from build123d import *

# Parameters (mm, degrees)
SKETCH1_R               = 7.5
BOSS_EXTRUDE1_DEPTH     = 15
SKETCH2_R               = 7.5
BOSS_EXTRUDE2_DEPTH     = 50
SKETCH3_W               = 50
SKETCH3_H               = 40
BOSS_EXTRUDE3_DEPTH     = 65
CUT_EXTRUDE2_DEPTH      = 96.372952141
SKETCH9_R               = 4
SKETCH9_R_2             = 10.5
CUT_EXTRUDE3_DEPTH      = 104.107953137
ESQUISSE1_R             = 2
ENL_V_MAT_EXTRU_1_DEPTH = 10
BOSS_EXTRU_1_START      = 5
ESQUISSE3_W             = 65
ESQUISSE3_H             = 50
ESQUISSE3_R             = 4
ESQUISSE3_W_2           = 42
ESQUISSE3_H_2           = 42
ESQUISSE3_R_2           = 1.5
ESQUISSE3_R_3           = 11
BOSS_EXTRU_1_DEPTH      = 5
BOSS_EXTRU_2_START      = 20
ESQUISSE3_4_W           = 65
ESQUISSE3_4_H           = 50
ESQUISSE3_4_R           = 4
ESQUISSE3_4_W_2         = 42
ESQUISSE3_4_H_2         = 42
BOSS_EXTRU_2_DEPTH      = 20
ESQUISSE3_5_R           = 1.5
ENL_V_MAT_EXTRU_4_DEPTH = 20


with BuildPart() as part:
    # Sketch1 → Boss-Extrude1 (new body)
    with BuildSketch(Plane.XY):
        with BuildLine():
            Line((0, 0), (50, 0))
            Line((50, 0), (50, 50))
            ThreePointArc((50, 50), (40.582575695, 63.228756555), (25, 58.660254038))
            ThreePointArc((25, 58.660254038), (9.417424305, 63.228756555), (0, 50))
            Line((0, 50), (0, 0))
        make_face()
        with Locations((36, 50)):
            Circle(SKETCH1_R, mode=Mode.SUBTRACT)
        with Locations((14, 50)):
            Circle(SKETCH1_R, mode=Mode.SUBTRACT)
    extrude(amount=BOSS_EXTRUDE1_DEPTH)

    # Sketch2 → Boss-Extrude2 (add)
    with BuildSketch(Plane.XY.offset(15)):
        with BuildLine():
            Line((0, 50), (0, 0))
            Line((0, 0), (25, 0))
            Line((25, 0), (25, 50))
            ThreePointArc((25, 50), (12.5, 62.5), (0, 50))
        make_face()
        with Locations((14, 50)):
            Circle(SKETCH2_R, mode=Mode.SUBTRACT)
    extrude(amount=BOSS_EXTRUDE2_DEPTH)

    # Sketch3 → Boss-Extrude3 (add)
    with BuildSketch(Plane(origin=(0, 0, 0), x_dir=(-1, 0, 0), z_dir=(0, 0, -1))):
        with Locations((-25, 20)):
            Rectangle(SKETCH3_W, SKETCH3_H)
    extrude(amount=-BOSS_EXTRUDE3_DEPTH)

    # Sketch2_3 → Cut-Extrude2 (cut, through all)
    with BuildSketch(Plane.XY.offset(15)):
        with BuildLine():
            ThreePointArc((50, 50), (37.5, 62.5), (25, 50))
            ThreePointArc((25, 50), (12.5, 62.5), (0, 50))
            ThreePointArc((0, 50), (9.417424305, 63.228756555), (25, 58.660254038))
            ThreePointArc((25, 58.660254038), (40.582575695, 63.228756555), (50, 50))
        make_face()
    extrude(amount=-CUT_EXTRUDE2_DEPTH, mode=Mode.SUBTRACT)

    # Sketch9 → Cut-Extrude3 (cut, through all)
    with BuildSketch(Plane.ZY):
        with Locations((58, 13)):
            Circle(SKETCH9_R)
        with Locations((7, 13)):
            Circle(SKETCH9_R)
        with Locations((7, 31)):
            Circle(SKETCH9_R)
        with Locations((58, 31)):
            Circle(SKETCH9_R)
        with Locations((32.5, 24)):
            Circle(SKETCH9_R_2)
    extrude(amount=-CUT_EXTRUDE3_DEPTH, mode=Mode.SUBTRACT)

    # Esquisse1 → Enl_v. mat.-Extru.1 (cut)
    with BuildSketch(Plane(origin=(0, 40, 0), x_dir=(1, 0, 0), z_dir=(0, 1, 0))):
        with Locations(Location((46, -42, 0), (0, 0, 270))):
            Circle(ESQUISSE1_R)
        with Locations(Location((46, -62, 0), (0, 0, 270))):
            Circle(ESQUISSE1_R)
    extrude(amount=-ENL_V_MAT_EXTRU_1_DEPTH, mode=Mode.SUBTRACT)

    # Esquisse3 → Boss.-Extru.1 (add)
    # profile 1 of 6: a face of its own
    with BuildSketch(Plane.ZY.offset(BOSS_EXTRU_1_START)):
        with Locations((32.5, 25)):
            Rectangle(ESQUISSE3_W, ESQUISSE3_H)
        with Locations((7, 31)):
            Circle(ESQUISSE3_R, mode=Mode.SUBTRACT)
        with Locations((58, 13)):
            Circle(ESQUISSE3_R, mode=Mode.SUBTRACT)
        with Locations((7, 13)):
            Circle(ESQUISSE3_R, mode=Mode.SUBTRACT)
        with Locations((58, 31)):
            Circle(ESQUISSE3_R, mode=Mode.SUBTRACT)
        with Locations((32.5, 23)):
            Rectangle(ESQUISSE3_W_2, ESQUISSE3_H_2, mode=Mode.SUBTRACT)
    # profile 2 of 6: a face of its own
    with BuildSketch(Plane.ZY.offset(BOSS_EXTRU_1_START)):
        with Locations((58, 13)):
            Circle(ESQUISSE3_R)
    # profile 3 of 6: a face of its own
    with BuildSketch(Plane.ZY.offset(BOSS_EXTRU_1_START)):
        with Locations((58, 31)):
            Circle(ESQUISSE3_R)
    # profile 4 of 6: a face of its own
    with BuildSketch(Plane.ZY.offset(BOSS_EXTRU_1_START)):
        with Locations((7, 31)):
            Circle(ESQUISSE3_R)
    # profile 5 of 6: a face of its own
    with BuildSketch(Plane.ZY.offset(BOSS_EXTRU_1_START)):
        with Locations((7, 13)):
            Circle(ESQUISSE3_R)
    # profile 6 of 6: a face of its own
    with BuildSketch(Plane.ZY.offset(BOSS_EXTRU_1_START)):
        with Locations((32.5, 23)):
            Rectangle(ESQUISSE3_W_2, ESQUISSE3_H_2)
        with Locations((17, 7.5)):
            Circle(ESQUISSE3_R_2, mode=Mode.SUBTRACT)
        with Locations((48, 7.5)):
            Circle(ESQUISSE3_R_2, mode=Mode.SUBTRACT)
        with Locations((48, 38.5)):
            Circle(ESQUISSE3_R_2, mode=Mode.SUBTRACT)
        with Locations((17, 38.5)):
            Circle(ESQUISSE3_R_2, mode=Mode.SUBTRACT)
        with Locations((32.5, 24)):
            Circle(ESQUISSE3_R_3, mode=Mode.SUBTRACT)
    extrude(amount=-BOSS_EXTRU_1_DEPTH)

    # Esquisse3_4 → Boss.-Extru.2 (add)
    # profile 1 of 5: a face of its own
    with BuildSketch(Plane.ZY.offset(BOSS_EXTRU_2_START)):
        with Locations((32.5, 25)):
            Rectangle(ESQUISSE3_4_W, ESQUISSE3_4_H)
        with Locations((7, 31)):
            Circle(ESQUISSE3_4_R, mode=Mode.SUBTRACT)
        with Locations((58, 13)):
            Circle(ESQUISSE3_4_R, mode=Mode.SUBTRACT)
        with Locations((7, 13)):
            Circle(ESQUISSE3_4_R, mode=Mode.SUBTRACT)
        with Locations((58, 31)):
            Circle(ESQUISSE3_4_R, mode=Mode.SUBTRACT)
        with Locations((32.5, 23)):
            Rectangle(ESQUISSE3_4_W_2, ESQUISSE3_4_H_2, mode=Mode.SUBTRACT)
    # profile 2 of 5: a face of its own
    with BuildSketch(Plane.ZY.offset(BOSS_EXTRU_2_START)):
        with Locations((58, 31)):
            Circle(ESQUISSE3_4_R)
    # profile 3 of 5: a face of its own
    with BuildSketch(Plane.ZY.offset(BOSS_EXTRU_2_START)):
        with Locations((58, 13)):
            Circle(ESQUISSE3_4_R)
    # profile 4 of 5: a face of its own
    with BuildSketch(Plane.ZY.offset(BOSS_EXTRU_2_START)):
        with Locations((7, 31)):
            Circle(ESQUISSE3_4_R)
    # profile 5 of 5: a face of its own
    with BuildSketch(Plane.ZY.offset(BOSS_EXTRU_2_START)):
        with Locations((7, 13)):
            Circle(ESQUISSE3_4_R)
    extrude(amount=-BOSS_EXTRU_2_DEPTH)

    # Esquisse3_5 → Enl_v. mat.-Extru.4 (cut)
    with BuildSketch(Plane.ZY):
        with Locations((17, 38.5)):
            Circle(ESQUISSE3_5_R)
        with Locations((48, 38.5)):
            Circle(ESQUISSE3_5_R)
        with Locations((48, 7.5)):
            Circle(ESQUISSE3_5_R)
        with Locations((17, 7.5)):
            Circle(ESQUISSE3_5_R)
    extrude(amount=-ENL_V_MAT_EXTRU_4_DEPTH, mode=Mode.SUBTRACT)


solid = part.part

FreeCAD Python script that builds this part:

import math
import FreeCAD as App
import Part
import Sketcher
from FreeCAD import Vector
Q = App.Units.Quantity

doc = App.newDocument("Part")
body = doc.addObject("PartDesign::Body", "Body")

sketch1 = doc.addObject("Sketcher::SketchObject", "Sketch")
body.addObject(sketch1)
sketch1.AttachmentSupport = (doc.XY_Plane, [""])
sketch1.MapMode = "FlatFace"
sketch1.addGeometry([
    Part.LineSegment(Vector(0, 0, 0), Vector(50, 0, 0)),
    Part.LineSegment(Vector(50, 0, 0), Vector(50, 50, 0)),
    Part.ArcOfCircle(Part.Circle(Vector(36, 50, 0), Vector(0, 0, 1), 14), math.radians(0), math.radians(142)),
    Part.ArcOfCircle(Part.Circle(Vector(14, 50, 0), Vector(0, 0, 1), 14), math.radians(38), math.radians(180)),
    Part.LineSegment(Vector(0, 50, 0), Vector(0, 0, 0)),
    Part.Circle(Vector(14, 50, 0), Vector(0, 0, 1), 8),
    Part.Circle(Vector(36, 50, 0), Vector(0, 0, 1), 8),
], False)
sketch1.addConstraint([
    Sketcher.Constraint("Coincident", 0, 2, 1, 1),
    Sketcher.Constraint("Tangent", 1, 2, 2, 1),
    Sketcher.Constraint("Coincident", 2, 2, 3, 1),
    Sketcher.Constraint("Tangent", 3, 2, 4, 1),
    Sketcher.Constraint("Coincident", 4, 2, 0, 1),
    Sketcher.Constraint("Horizontal", 0),
    Sketcher.Constraint("Vertical", 1),
    Sketcher.Constraint("Vertical", 4),
    Sketcher.Constraint("Coincident", 4, 2, -1, 1),
    Sketcher.Constraint("Coincident", 5, 3, 3, 3),
    Sketcher.Constraint("Coincident", 6, 3, 2, 3),
    Sketcher.Constraint("Equal", 2, 3),
    Sketcher.Constraint("Equal", 5, 6),
    Sketcher.Constraint("Horizontal", 2, 3, 3, 3),
    Sketcher.Constraint("Equal", 0, 1),
    Sketcher.Constraint("Diameter", 5, Q("15 mm")),
    Sketcher.Constraint("Radius", 2, Q("14 mm")),
    Sketcher.Constraint("DistanceX", 0, 1, 0, 2, Q("50 mm")),
])
pad1 = doc.addObject("PartDesign::Pad", "Pad")
body.addObject(pad1)
pad1.Profile = sketch1
pad1.Length = 15

sketch2 = doc.addObject("Sketcher::SketchObject", "Sketch001")
body.addObject(sketch2)
sketch2.AttachmentSupport = (doc.XY_Plane, [""])
sketch2.MapMode = "FlatFace"
sketch2.AttachmentOffset = App.Placement(Vector(0, 0, 15), App.Rotation())
sketch2.addGeometry([
    Part.LineSegment(Vector(0, 50, 0), Vector(0, 0, 0)),
    Part.LineSegment(Vector(0, 0, 0), Vector(25, 0, 0)),
    Part.LineSegment(Vector(25, 0, 0), Vector(25, 50, 0)),
    Part.ArcOfCircle(Part.Circle(Vector(12, 50, 0), Vector(0, 0, 1), 12), math.radians(0), math.radians(180)),
    Part.Circle(Vector(14, 50, 0), Vector(0, 0, 1), 8),
], False)
sketch2.addConstraint([
    Sketcher.Constraint("Coincident", 0, 2, 1, 1),
    Sketcher.Constraint("Coincident", 1, 2, 2, 1),
    Sketcher.Constraint("Tangent", 2, 2, 3, 1),
    Sketcher.Constraint("Tangent", 3, 2, 0, 1),
    Sketcher.Constraint("Vertical", 0),
    Sketcher.Constraint("Horizontal", 1),
    Sketcher.Constraint("Vertical", 2),
    Sketcher.Constraint("Coincident", 0, 2, -1, 1),
    Sketcher.Constraint("Horizontal", 3, 3, 4, 3),
    Sketcher.Constraint("Diameter", 4, Q("15 mm")),
    Sketcher.Constraint("Radius", 3, Q("12.5 mm")),
    Sketcher.Constraint("DistanceY", 0, 2, 0, 1, Q("50 mm")),
    Sketcher.Constraint("DistanceX", -1, 1, 4, 3, Q("14 mm")),
])
pad2 = doc.addObject("PartDesign::Pad", "Pad001")
body.addObject(pad2)
pad2.Profile = sketch2
pad2.Length = 50

sketch3 = doc.addObject("Sketcher::SketchObject", "Sketch002")
body.addObject(sketch3)
sketch3.AttachmentSupport = (doc.XY_Plane, [""])
sketch3.MapMode = "FlatFace"
sketch3.addGeometry([
    Part.LineSegment(Vector(50, 40, 0), Vector(50, 0, 0)),
    Part.LineSegment(Vector(50, 0, 0), Vector(0, 0, 0)),
    Part.LineSegment(Vector(0, 0, 0), Vector(0, 40, 0)),
    Part.LineSegment(Vector(0, 40, 0), Vector(50, 40, 0)),
], False)
sketch3.addConstraint([
    Sketcher.Constraint("Coincident", 0, 2, 1, 1),
    Sketcher.Constraint("Coincident", 1, 2, 2, 1),
    Sketcher.Constraint("Coincident", 2, 2, 3, 1),
    Sketcher.Constraint("Coincident", 3, 2, 0, 1),
    Sketcher.Constraint("Vertical", 0),
    Sketcher.Constraint("Horizontal", 1),
    Sketcher.Constraint("Vertical", 2),
    Sketcher.Constraint("Horizontal", 3),
    Sketcher.Constraint("Coincident", 1, 2, -1, 1),
    Sketcher.Constraint("DistanceX", 1, 2, 1, 1, Q("50 mm")),
    Sketcher.Constraint("DistanceY", 0, 2, 0, 1, Q("40 mm")),
])
pad3 = doc.addObject("PartDesign::Pad", "Pad002")
body.addObject(pad3)
pad3.Profile = sketch3
pad3.Length = 65

sketch4 = doc.addObject("Sketcher::SketchObject", "Sketch003")
body.addObject(sketch4)
sketch4.AttachmentSupport = (doc.XY_Plane, [""])
sketch4.MapMode = "FlatFace"
sketch4.AttachmentOffset = App.Placement(Vector(0, 0, 15), App.Rotation())
sketch4.addGeometry([
    Part.ArcOfCircle(Part.Circle(Vector(38, 50, 0), Vector(0, 0, 1), 12), math.radians(0), math.radians(180)),
    Part.ArcOfCircle(Part.Circle(Vector(36, 50, 0), Vector(0, 0, 1), 14), math.radians(0), math.radians(142)),
    Part.ArcOfCircle(Part.Circle(Vector(14, 50, 0), Vector(0, 0, 1), 14), math.radians(38), math.radians(180)),
    Part.ArcOfCircle(Part.Circle(Vector(12, 50, 0), Vector(0, 0, 1), 12), math.radians(0), math.radians(180)),
], False)
sketch4.addConstraint([
    Sketcher.Constraint("Tangent", 0, 1, 1, 1),
    Sketcher.Constraint("Coincident", 1, 2, 2, 1),
    Sketcher.Constraint("Tangent", 2, 2, 3, 2),
    Sketcher.Constraint("Tangent", 3, 1, 0, 2),
    Sketcher.Constraint("Equal", 1, 2),
    Sketcher.Constraint("Equal", 0, 3),
    Sketcher.Constraint("PointOnObject", 2, 2, -2),
    Sketcher.Constraint("Horizontal", 0, 3, 1, 3),
    Sketcher.Constraint("Horizontal", 1, 3, 2, 3),
    Sketcher.Constraint("Horizontal", 2, 3, 3, 3),
    Sketcher.Constraint("Radius", 1, Q("14 mm")),
    Sketcher.Constraint("Radius", 0, Q("12.5 mm")),
    Sketcher.Constraint("DistanceY", -1, 1, 0, 3, Q("50 mm")),
])
pocket1 = doc.addObject("PartDesign::Pocket", "Pocket")
body.addObject(pocket1)
pocket1.Profile = sketch4
pocket1.Type = "ThroughAll"

sketch5 = doc.addObject("Sketcher::SketchObject", "Sketch004")
body.addObject(sketch5)
sketch5.AttachmentSupport = (doc.YZ_Plane, [""])
sketch5.MapMode = "FlatFace"
sketch5.addGeometry([
    Part.Circle(Vector(13, 58, 0), Vector(0, 0, 1), 4),
    Part.Circle(Vector(13, 7, 0), Vector(0, 0, 1), 4),
    Part.Circle(Vector(31, 7, 0), Vector(0, 0, 1), 4),
    Part.Circle(Vector(31, 58, 0), Vector(0, 0, 1), 4),
    Part.Circle(Vector(24, 32.5, 0), Vector(0, 0, 1), 10.5),
], False)
sketch5.addConstraint([
    Sketcher.Constraint("Equal", 0, 1),
    Sketcher.Constraint("Equal", 1, 2),
    Sketcher.Constraint("Equal", 2, 3),
    Sketcher.Constraint("Horizontal", 1, 3, 2, 3),
    Sketcher.Constraint("Horizontal", 0, 3, 3, 3),
    Sketcher.Constraint("Vertical", 0, 3, 1, 3),
    Sketcher.Constraint("Vertical", 2, 3, 3, 3),
    Sketcher.Constraint("Diameter", 0, Q("8 mm")),
    Sketcher.Constraint("Diameter", 4, Q("21 mm")),
    Sketcher.Constraint("DistanceX", -1, 1, 0, 3, Q("13 mm")),
    Sketcher.Constraint("DistanceY", -1, 1, 0, 3, Q("58 mm")),
    Sketcher.Constraint("DistanceY", -1, 1, 1, 3, Q("7 mm")),
    Sketcher.Constraint("DistanceX", -1, 1, 2, 3, Q("31 mm")),
    Sketcher.Constraint("DistanceX", -1, 1, 4, 3, Q("24 mm")),
    Sketcher.Constraint("DistanceY", -1, 1, 4, 3, Q("32.5 mm")),
])
pocket2 = doc.addObject("PartDesign::Pocket", "Pocket001")
body.addObject(pocket2)
pocket2.Profile = sketch5
pocket2.Type = "ThroughAll"
pocket2.Reversed = True

sketch6 = doc.addObject("Sketcher::SketchObject", "Sketch005")
body.addObject(sketch6)
sketch6.AttachmentSupport = (doc.XZ_Plane, [""])
sketch6.MapMode = "FlatFace"
sketch6.AttachmentOffset = App.Placement(Vector(0, 0, -40), App.Rotation())
sketch6.addGeometry([
    Part.Circle(Vector(46, 42, 0), Vector(0, 0, 1), 2),
    Part.Circle(Vector(46, 62, 0), Vector(0, 0, 1), 2),
], False)
sketch6.addConstraint([
    Sketcher.Constraint("Equal", 0, 1),
    Sketcher.Constraint("Vertical", 0, 3, 1, 3),
    Sketcher.Constraint("Diameter", 0, Q("4 mm")),
    Sketcher.Constraint("DistanceX", -1, 1, 0, 3, Q("46 mm")),
    Sketcher.Constraint("DistanceY", -1, 1, 0, 3, Q("42 mm")),
    Sketcher.Constraint("DistanceY", -1, 1, 1, 3, Q("62 mm")),
])
pocket3 = doc.addObject("PartDesign::Pocket", "Pocket002")
body.addObject(pocket3)
pocket3.Profile = sketch6
pocket3.Length = 10
pocket3.Reversed = True

sketch7 = doc.addObject("Sketcher::SketchObject", "Sketch006")
body.addObject(sketch7)
sketch7.AttachmentSupport = (doc.YZ_Plane, [""])
sketch7.MapMode = "FlatFace"
sketch7.AttachmentOffset = App.Placement(Vector(0, 0, -5), App.Rotation())
sketch7.addGeometry([
    Part.LineSegment(Vector(50, 0, 0), Vector(0, 0, 0)),
    Part.LineSegment(Vector(0, 0, 0), Vector(0, 65, 0)),
    Part.LineSegment(Vector(0, 65, 0), Vector(50, 65, 0)),
    Part.LineSegment(Vector(50, 65, 0), Vector(50, 0, 0)),
    Part.Circle(Vector(7.5, 48, 0), Vector(0, 0, 1), 1.5),
    Part.Circle(Vector(38.5, 48, 0), Vector(0, 0, 1), 1.5),
    Part.Circle(Vector(38.5, 17, 0), Vector(0, 0, 1), 1.5),
    Part.Circle(Vector(24, 32.5, 0), Vector(0, 0, 1), 11),
    Part.Circle(Vector(7.5, 17, 0), Vector(0, 0, 1), 1.5),
], False)
sketch7.addConstraint([
    Sketcher.Constraint("Coincident", 0, 2, 1, 1),
    Sketcher.Constraint("Coincident", 1, 2, 2, 1),
    Sketcher.Constraint("Coincident", 2, 2, 3, 1),
    Sketcher.Constraint("Coincident", 3, 2, 0, 1),
    Sketcher.Constraint("Horizontal", 0),
    Sketcher.Constraint("Vertical", 1),
    Sketcher.Constraint("Horizontal", 2),
    Sketcher.Constraint("Vertical", 3),
    Sketcher.Constraint("Coincident", 0, 2, -1, 1),
    Sketcher.Constraint("Equal", 4, 5),
    Sketcher.Constraint("Equal", 5, 6),
    Sketcher.Constraint("Equal", 6, 8),
    Sketcher.Constraint("Horizontal", 4, 3, 5, 3),
    Sketcher.Constraint("Horizontal", 6, 3, 8, 3),
    Sketcher.Constraint("Vertical", 5, 3, 6, 3),
    Sketcher.Constraint("Vertical", 4, 3, 8, 3),
    Sketcher.Constraint("Diameter", 4, Q("3 mm")),
    Sketcher.Constraint("Diameter", 7, Q("22 mm")),
    Sketcher.Constraint("DistanceX", 0, 2, 0, 1, Q("50 mm")),
    Sketcher.Constraint("DistanceY", 1, 1, 1, 2, Q("65 mm")),
    Sketcher.Constraint("DistanceY", -1, 1, 4, 3, Q("48 mm")),
    Sketcher.Constraint("DistanceY", -1, 1, 6, 3, Q("17 mm")),
    Sketcher.Constraint("DistanceX", -1, 1, 7, 3, Q("24 mm")),
    Sketcher.Constraint("DistanceX", 4, 3, 5, 3, Q("31 mm")),
    Sketcher.Constraint("DistanceX", -1, 1, 4, 3, Q("7.5 mm")),
    Sketcher.Constraint("DistanceY", -1, 1, 7, 3, Q("32.5 mm")),
])
pad4 = doc.addObject("PartDesign::Pad", "Pad003")
body.addObject(pad4)
pad4.Profile = sketch7
pad4.Length = 5

sketch8 = doc.addObject("Sketcher::SketchObject", "Sketch007")
body.addObject(sketch8)
sketch8.AttachmentSupport = (doc.YZ_Plane, [""])
sketch8.MapMode = "FlatFace"
sketch8.AttachmentOffset = App.Placement(Vector(0, 0, -20), App.Rotation())
sketch8.addGeometry([
    Part.LineSegment(Vector(50, 0, 0), Vector(0, 0, 0)),
    Part.LineSegment(Vector(0, 0, 0), Vector(0, 65, 0)),
    Part.LineSegment(Vector(0, 65, 0), Vector(50, 65, 0)),
    Part.LineSegment(Vector(50, 65, 0), Vector(50, 0, 0)),
    Part.LineSegment(Vector(2, 54, 0), Vector(2, 12, 0)),
    Part.LineSegment(Vector(2, 12, 0), Vector(44, 12, 0)),
    Part.LineSegment(Vector(44, 12, 0), Vector(44, 54, 0)),
    Part.LineSegment(Vector(44, 54, 0), Vector(2, 54, 0)),
], False)
sketch8.addConstraint([
    Sketcher.Constraint("Coincident", 0, 2, 1, 1),
    Sketcher.Constraint("Coincident", 1, 2, 2, 1),
    Sketcher.Constraint("Coincident", 2, 2, 3, 1),
    Sketcher.Constraint("Coincident", 3, 2, 0, 1),
    Sketcher.Constraint("Coincident", 4, 2, 5, 1),
    Sketcher.Constraint("Coincident", 5, 2, 6, 1),
    Sketcher.Constraint("Coincident", 6, 2, 7, 1),
    Sketcher.Constraint("Coincident", 7, 2, 4, 1),
    Sketcher.Constraint("Horizontal", 0),
    Sketcher.Constraint("Vertical", 1),
    Sketcher.Constraint("Horizontal", 2),
    Sketcher.Constraint("Vertical", 3),
    Sketcher.Constraint("Vertical", 4),
    Sketcher.Constraint("Horizontal", 5),
    Sketcher.Constraint("Vertical", 6),
    Sketcher.Constraint("Horizontal", 7),
    Sketcher.Constraint("Coincident", 0, 2, -1, 1),
    Sketcher.Constraint("Equal", 7, 4),
    Sketcher.Constraint("DistanceX", 0, 2, 0, 1, Q("50 mm")),
    Sketcher.Constraint("DistanceX", 5, 1, 5, 2, Q("42 mm")),
    Sketcher.Constraint("DistanceY", 1, 1, 1, 2, Q("65 mm")),
    Sketcher.Constraint("DistanceX", -1, 1, 4, 2, Q("2 mm")),
    Sketcher.Constraint("DistanceY", -1, 1, 4, 2, Q("11.5 mm")),
])
pad5 = doc.addObject("PartDesign::Pad", "Pad004")
body.addObject(pad5)
pad5.Profile = sketch8
pad5.Length = 20

sketch9 = doc.addObject("Sketcher::SketchObject", "Sketch008")
body.addObject(sketch9)
sketch9.AttachmentSupport = (doc.YZ_Plane, [""])
sketch9.MapMode = "FlatFace"
sketch9.addGeometry([
    Part.Circle(Vector(38.5, 17, 0), Vector(0, 0, 1), 1.5),
    Part.Circle(Vector(38.5, 48, 0), Vector(0, 0, 1), 1.5),
    Part.Circle(Vector(7.5, 48, 0), Vector(0, 0, 1), 1.5),
    Part.Circle(Vector(7.5, 17, 0), Vector(0, 0, 1), 1.5),
], False)
sketch9.addConstraint([
    Sketcher.Constraint("Equal", 0, 1),
    Sketcher.Constraint("Equal", 1, 2),
    Sketcher.Constraint("Equal", 2, 3),
    Sketcher.Constraint("Horizontal", 1, 3, 2, 3),
    Sketcher.Constraint("Horizontal", 0, 3, 3, 3),
    Sketcher.Constraint("Vertical", 0, 3, 1, 3),
    Sketcher.Constraint("Vertical", 2, 3, 3, 3),
    Sketcher.Constraint("Diameter", 0, Q("3 mm")),
    Sketcher.Constraint("DistanceY", -1, 1, 0, 3, Q("17 mm")),
    Sketcher.Constraint("DistanceY", -1, 1, 1, 3, Q("48 mm")),
    Sketcher.Constraint("DistanceX", 2, 3, 1, 3, Q("31 mm")),
    Sketcher.Constraint("DistanceX", -1, 1, 0, 3, Q("38.5 mm")),
])
pocket4 = doc.addObject("PartDesign::Pocket", "Pocket003")
body.addObject(pocket4)
pocket4.Profile = sketch9
pocket4.Length = 20
pocket4.Reversed = True

doc.recompute()
